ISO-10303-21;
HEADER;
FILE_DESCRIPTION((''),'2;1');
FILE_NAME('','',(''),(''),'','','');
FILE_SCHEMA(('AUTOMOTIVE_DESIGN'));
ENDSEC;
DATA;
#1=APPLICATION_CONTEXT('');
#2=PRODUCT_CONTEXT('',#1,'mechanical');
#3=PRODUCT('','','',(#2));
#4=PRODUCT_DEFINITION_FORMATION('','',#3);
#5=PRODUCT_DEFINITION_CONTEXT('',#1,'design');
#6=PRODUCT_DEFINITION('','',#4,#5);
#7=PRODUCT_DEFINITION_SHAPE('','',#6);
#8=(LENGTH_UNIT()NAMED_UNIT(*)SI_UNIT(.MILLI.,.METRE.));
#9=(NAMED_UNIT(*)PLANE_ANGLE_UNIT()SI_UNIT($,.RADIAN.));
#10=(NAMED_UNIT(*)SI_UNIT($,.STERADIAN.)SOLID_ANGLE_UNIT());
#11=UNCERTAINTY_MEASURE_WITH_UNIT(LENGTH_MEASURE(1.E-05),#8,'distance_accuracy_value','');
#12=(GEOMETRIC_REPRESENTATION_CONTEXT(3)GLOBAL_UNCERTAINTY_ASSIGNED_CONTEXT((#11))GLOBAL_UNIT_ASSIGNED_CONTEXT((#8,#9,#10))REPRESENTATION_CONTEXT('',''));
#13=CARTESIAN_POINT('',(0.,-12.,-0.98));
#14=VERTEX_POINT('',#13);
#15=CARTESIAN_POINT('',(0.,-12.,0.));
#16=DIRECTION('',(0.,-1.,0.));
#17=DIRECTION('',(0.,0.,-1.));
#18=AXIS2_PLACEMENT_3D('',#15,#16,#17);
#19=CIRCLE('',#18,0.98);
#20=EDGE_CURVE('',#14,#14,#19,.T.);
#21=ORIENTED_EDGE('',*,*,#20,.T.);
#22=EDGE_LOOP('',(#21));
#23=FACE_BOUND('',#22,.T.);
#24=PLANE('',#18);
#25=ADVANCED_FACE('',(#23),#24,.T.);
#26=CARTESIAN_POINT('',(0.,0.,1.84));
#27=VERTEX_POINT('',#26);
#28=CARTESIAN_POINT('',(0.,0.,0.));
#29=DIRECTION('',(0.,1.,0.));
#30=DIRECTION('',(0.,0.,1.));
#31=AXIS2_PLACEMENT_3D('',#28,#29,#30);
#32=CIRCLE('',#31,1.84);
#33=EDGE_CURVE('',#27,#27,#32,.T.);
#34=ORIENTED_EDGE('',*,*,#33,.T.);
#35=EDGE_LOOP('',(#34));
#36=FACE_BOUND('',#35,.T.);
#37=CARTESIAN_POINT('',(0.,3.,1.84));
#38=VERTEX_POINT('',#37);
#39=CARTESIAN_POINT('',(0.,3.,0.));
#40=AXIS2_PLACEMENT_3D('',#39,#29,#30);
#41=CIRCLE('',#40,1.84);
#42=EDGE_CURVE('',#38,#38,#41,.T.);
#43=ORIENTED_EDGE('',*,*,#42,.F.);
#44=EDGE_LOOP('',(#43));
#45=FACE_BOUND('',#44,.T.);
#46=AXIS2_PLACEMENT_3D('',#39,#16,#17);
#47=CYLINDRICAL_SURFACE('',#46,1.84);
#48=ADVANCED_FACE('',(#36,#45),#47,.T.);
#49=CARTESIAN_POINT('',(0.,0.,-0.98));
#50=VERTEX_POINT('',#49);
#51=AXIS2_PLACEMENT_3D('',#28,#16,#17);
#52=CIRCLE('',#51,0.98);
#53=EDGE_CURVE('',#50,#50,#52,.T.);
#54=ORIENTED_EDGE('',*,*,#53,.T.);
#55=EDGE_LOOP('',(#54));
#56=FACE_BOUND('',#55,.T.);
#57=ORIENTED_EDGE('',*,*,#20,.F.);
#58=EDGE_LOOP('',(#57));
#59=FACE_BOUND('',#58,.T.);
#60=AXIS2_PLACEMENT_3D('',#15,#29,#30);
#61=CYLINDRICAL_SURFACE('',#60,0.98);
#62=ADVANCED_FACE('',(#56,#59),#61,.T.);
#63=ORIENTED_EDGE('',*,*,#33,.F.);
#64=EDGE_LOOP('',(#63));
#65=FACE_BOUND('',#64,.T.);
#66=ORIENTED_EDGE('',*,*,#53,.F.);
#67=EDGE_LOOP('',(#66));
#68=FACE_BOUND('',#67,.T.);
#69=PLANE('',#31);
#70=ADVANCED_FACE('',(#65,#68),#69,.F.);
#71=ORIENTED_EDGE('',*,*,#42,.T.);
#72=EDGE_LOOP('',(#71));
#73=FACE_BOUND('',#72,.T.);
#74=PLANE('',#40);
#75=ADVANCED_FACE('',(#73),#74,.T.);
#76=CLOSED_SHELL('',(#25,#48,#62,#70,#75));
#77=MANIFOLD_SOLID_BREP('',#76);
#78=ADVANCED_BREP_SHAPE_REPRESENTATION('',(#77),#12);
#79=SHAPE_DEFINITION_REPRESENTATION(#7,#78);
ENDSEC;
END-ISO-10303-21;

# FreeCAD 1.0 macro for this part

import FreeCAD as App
import Part
import Sketcher

V = App.Vector

doc = App.newDocument("Part")
body = doc.addObject("PartDesign::Body", "Body")

sketch1 = body.newObject("Sketcher::SketchObject", "Sketch")
sketch1.AttachmentSupport = (doc.getObject("XZ_Plane"), [""])
sketch1.MapMode = "FlatFace"
sketch1.addGeometry(Part.Circle(V(0, 0, 0), V(0, 0, 1), 1.8), False)
sketch1.addConstraint([
    Sketcher.Constraint("Coincident", 0, 3, -1, 1),
    Sketcher.Constraint("Diameter", 0, 3.68),
])
pad1 = body.newObject("PartDesign::Pad", "Pad")
pad1.Profile = sketch1
pad1.Length = 3
pad1.Reversed = True

sketch2 = body.newObject("Sketcher::SketchObject", "Sketch001")
sketch2.AttachmentSupport = (doc.getObject("XZ_Plane"), [""])
sketch2.MapMode = "FlatFace"
sketch2.addGeometry(Part.Circle(V(0, 0, 0), V(0, 0, 1), 1), False)
sketch2.addConstraint([
    Sketcher.Constraint("Coincident", 0, 3, -1, 1),
    Sketcher.Constraint("Diameter", 0, 1.96),
])
pad2 = body.newObject("PartDesign::Pad", "Pad001")
pad2.Profile = sketch2
pad2.Length = 12

doc.recompute()
